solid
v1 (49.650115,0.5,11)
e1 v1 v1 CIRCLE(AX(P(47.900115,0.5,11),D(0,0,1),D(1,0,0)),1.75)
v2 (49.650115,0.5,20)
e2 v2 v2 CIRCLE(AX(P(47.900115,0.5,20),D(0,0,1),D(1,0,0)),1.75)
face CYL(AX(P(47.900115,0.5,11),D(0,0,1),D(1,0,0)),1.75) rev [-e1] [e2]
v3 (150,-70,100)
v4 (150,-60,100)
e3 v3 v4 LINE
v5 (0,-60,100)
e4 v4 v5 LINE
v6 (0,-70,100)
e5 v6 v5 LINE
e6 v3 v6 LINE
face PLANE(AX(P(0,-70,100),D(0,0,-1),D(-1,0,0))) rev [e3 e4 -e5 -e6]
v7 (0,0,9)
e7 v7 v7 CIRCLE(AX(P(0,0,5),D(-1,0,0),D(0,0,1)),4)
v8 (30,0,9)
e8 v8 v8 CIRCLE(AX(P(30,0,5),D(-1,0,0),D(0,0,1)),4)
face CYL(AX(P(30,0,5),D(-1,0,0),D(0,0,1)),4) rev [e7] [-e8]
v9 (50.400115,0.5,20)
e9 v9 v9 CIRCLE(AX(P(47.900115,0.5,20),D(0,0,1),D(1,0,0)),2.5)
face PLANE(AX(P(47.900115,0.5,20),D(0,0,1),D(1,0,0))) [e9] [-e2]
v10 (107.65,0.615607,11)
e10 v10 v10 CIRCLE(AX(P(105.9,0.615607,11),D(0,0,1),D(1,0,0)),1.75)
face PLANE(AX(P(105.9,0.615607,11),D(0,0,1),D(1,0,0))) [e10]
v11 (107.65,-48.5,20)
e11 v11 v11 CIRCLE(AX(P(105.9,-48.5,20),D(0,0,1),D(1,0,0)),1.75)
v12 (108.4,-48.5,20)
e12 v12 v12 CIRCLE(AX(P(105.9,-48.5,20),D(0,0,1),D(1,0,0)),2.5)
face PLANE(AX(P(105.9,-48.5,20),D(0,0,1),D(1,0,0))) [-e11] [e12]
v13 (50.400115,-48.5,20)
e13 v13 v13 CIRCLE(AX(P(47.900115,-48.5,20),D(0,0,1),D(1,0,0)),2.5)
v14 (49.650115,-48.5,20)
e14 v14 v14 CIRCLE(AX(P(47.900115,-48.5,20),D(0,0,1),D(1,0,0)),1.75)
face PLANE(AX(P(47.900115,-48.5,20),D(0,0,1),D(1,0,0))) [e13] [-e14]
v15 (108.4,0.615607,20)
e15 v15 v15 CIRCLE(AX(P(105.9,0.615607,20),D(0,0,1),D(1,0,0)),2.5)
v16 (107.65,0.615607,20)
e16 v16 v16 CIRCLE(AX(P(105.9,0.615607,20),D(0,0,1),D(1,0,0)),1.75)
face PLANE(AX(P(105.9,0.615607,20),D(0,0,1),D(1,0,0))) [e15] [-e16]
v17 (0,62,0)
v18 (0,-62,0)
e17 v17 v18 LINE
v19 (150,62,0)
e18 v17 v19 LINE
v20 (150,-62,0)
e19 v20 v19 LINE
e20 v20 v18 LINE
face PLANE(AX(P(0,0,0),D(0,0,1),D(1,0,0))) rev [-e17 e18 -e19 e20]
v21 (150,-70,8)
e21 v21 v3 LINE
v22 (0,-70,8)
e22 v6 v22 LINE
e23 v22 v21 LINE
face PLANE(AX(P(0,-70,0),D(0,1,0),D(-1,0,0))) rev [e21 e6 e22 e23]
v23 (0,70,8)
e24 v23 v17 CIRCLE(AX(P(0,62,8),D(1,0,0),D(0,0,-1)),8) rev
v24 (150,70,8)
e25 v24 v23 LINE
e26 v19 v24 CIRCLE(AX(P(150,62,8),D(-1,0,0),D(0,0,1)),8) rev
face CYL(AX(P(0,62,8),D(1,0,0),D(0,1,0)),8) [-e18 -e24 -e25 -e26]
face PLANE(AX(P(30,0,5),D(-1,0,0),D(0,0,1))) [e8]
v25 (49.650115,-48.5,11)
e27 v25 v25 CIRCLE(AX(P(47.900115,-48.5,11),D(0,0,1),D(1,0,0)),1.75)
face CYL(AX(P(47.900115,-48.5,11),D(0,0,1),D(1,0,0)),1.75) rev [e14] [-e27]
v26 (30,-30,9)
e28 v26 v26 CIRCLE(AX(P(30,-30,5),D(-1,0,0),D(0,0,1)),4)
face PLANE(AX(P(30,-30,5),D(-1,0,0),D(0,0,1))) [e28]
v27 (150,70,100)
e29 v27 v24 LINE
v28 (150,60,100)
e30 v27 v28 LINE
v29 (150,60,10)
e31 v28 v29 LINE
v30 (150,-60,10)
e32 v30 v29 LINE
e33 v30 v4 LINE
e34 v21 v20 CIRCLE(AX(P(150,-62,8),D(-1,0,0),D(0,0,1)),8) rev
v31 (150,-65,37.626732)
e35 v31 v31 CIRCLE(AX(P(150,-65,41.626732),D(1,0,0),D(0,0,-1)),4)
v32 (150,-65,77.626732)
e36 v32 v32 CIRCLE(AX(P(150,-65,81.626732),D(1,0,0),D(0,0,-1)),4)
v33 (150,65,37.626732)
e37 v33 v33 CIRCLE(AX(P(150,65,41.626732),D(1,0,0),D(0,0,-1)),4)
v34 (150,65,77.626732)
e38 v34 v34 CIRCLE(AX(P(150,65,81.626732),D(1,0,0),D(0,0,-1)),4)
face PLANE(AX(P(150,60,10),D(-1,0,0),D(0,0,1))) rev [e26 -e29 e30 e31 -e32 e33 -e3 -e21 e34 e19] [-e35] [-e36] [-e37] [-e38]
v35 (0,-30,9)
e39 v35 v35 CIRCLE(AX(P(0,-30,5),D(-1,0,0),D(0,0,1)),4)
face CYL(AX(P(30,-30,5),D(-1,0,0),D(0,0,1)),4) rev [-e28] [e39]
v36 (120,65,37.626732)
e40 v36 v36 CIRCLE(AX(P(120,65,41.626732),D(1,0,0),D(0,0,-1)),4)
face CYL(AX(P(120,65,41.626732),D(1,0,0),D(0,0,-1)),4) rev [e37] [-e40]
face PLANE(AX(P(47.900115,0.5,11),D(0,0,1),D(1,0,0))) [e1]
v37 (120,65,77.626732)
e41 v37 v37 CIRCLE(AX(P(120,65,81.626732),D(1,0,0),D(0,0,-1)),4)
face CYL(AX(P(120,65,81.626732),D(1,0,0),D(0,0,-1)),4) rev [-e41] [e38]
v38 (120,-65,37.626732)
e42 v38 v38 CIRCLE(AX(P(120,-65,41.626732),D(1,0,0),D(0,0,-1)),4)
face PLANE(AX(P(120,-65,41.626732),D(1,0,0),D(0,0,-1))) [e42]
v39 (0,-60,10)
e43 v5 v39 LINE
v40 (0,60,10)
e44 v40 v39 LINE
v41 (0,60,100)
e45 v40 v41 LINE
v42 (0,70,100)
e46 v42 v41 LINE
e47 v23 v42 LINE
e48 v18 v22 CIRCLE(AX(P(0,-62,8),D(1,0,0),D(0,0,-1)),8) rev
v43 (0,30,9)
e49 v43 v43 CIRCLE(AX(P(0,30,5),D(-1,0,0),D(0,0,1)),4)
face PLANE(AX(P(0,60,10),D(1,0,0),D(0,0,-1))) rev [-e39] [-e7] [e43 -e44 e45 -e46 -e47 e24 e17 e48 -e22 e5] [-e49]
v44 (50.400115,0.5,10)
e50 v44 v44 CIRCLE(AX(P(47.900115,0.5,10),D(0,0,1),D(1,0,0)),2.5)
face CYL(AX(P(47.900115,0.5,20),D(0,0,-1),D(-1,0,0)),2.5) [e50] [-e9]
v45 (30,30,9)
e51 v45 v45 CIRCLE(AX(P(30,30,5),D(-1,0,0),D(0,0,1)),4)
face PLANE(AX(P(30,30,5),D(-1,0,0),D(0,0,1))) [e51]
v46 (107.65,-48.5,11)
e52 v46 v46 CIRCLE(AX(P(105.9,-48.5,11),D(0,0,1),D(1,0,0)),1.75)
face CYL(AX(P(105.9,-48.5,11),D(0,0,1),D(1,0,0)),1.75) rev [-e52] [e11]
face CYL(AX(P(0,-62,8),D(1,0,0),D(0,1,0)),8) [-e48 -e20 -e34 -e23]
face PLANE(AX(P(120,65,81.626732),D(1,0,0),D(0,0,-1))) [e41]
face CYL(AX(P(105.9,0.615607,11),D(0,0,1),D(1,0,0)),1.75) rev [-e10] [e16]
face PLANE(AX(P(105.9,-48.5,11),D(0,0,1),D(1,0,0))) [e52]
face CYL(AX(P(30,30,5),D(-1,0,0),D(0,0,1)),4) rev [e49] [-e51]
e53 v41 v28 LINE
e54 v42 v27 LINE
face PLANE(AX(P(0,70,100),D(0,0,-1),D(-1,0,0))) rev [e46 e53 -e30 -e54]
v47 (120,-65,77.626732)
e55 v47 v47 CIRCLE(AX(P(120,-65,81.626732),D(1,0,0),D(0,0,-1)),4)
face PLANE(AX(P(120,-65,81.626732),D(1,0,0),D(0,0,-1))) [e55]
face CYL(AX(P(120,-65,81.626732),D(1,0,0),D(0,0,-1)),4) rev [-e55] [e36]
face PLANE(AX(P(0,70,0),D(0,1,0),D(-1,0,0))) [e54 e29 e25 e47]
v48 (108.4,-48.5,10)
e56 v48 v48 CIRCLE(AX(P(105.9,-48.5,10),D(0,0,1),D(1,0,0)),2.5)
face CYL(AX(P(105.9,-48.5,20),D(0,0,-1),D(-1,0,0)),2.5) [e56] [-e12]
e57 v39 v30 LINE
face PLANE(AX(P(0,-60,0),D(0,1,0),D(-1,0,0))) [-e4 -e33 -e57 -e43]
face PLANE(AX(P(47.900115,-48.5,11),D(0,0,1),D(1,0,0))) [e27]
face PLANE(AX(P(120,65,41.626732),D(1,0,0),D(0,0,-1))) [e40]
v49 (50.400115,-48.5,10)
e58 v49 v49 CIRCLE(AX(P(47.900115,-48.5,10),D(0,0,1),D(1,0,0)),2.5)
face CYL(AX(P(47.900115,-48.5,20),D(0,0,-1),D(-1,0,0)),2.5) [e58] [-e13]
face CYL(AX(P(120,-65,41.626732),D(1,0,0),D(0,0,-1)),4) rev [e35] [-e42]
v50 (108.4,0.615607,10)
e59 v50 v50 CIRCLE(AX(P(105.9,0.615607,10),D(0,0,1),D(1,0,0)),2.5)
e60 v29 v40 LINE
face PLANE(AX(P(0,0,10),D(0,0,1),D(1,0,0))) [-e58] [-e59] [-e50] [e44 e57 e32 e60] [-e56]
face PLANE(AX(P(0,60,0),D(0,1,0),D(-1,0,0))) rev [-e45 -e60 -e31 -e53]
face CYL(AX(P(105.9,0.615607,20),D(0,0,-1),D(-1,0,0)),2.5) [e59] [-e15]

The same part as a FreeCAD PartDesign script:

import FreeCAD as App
import Part
import Sketcher
from FreeCAD import Vector
Q = App.Units.Quantity


def edges_at(feature, points):
    """Names of the edges that pass closest to the given points."""
    edges = feature.Shape.Edges
    near = lambda p: min(range(len(edges)), key=lambda i: edges[i].distToShape(Part.Vertex(*p))[0])
    return sorted({f"Edge{near(p) + 1}" for p in points})

doc = App.newDocument("Part")
params = doc.addObject("Spreadsheet::Sheet", "Params")
for row, (alias, value) in enumerate([
    ("sketch1_width", "150 mm"),
    ("sketch1_height", "120 mm"),
    ("pad1_length", "10 mm"),
    ("sketch2_diameter", "8 mm"),
    ("pocket1_length", "30 mm"),
    ("sketch3_diameter", "5 mm"),
    ("pad2_length", "10 mm"),
    ("sketch4_diameter", "3.5 mm"),
    ("pocket2_length", "9 mm"),
    ("sketch5_width", "150 mm"),
    ("sketch5_height", "100 mm"),
    ("pad3_length", "10 mm"),
    ("sketch6_width", "150 mm"),
    ("sketch6_height", "100 mm"),
    ("pad4_length", "10 mm"),
    ("sketch7_diameter", "8 mm"),
    ("pocket3_length", "30 mm"),
    ("fillet_radius", "8 mm"),
], start=1):
    params.set(f"A{row}", alias)
    params.set(f"B{row}", "=" + value)
    params.setAlias(f"B{row}", alias)

body = doc.addObject("PartDesign::Body", "Body")

# Sketch on XY plane
sketch1 = body.newObject("Sketcher::SketchObject", "Sketch")
sketch1.AttachmentSupport = (doc.getObject("XY_Plane"), [""])
sketch1.MapMode = "FlatFace"
sketch1.addGeometry([
    Part.LineSegment(Vector(0, 60, 0), Vector(0, -60, 0)),
    Part.LineSegment(Vector(0, -60, 0), Vector(150, -60, 0)),
    Part.LineSegment(Vector(150, -60, 0), Vector(150, 60, 0)),
    Part.LineSegment(Vector(150, 60, 0), Vector(0, 60, 0)),
], False)
sketch1.addConstraint([
    Sketcher.Constraint("Coincident", 0, 2, 1, 1),
    Sketcher.Constraint("Coincident", 1, 2, 2, 1),
    Sketcher.Constraint("Coincident", 2, 2, 3, 1),
    Sketcher.Constraint("Coincident", 3, 2, 0, 1),
    Sketcher.Constraint("Vertical", 0),
    Sketcher.Constraint("Horizontal", 1),
    Sketcher.Constraint("Vertical", 2),
    Sketcher.Constraint("Horizontal", 3),
    Sketcher.Constraint("Symmetric", 0, 2, 3, 2, -1, 1),
    Sketcher.Constraint("DistanceX", 1, 1, 1, 2, Q("150 mm")),
    Sketcher.Constraint("DistanceY", 0, 2, 0, 1, Q("120 mm")),
])
sketch1.setExpression("Constraints[9]", "Params.sketch1_width")
sketch1.setExpression("Constraints[10]", "Params.sketch1_height")
pad1 = body.newObject("PartDesign::Pad", "Pad")
pad1.Profile = sketch1
pad1.setExpression("Length", "Params.pad1_length")

# Sketch on YZ plane
sketch2 = body.newObject("Sketcher::SketchObject", "Sketch001")
sketch2.AttachmentSupport = (doc.getObject("YZ_Plane"), [""])
sketch2.MapMode = "FlatFace"
sketch2.addGeometry([
    Part.Circle(Vector(0, 5, 0), Vector(0, 0, 1), 4),
    Part.Circle(Vector(30, 5, 0), Vector(0, 0, 1), 4),
    Part.Circle(Vector(-30, 5, 0), Vector(0, 0, 1), 4),
], False)
sketch2.addConstraint([
    Sketcher.Constraint("Equal", 0, 1),
    Sketcher.Constraint("Equal", 1, 2),
    Sketcher.Constraint("Symmetric", 1, 3, 2, 3, -2),
    Sketcher.Constraint("PointOnObject", 0, 3, -2),
    Sketcher.Constraint("Horizontal", 0, 3, 1, 3),
    Sketcher.Constraint("Diameter", 0, Q("8 mm")),
    Sketcher.Constraint("DistanceY", -1, 1, 0, 3, Q("5 mm")),
    Sketcher.Constraint("DistanceX", -1, 1, 1, 3, Q("30 mm")),
])
sketch2.setExpression("Constraints[5]", "Params.sketch2_diameter")
pocket1 = body.newObject("PartDesign::Pocket", "Pocket")
pocket1.Profile = sketch2
pocket1.setExpression("Length", "Params.pocket1_length")
pocket1.Reversed = True

# Sketch on XY plane
sketch3 = body.newObject("Sketcher::SketchObject", "Sketch002")
sketch3.AttachmentSupport = (doc.getObject("XY_Plane"), [""])
sketch3.MapMode = "FlatFace"
sketch3.AttachmentOffset = App.Placement(Vector(0, 0, 10), App.Rotation())
sketch3.addGeometry([
    Part.Circle(Vector(47.9, 0.5, 0), Vector(0, 0, 1), 2.5),
    Part.Circle(Vector(105.9, 0.6, 0), Vector(0, 0, 1), 2.5),
    Part.Circle(Vector(105.9, -48.5, 0), Vector(0, 0, 1), 2.5),
    Part.Circle(Vector(47.9, -48.5, 0), Vector(0, 0, 1), 2.5),
], False)
sketch3.addConstraint([
    Sketcher.Constraint("Equal", 0, 1),
    Sketcher.Constraint("Equal", 1, 2),
    Sketcher.Constraint("Equal", 2, 3),
    Sketcher.Constraint("Horizontal", 2, 3, 3, 3),
    Sketcher.Constraint("Vertical", 1, 3, 2, 3),
    Sketcher.Constraint("Vertical", 0, 3, 3, 3),
    Sketcher.Constraint("Diameter", 0, Q("5 mm")),
    Sketcher.Constraint("DistanceY", 2, 3, 0, 3, Q("49 mm")),
    Sketcher.Constraint("DistanceY", -1, 1, 0, 3, Q("0.5 mm")),
    Sketcher.Constraint("DistanceX", -1, 1, 1, 3, Q("105.9 mm")),
    Sketcher.Constraint("DistanceX", -1, 1, 0, 3, Q("47.900115 mm")),
    Sketcher.Constraint("DistanceY", -1, 1, 1, 3, Q("0.615607 mm")),
])
sketch3.setExpression("Constraints[6]", "Params.sketch3_diameter")
pad2 = body.newObject("PartDesign::Pad", "Pad001")
pad2.Profile = sketch3
pad2.setExpression("Length", "Params.pad2_length")

# Sketch on XY plane
sketch4 = body.newObject("Sketcher::SketchObject", "Sketch003")
sketch4.AttachmentSupport = (doc.getObject("XY_Plane"), [""])
sketch4.MapMode = "FlatFace"
sketch4.AttachmentOffset = App.Placement(Vector(0, 0, 20), App.Rotation())
sketch4.addGeometry([
    Part.Circle(Vector(47.9, 0.5, 0), Vector(0, 0, 1), 1.8),
    Part.Circle(Vector(47.9, -48.5, 0), Vector(0, 0, 1), 1.8),
    Part.Circle(Vector(105.9, -48.5, 0), Vector(0, 0, 1), 1.8),
    Part.Circle(Vector(105.9, 0.6, 0), Vector(0, 0, 1), 1.8),
], False)
sketch4.addConstraint([
    Sketcher.Constraint("Equal", 0, 1),
    Sketcher.Constraint("Equal", 1, 2),
    Sketcher.Constraint("Equal", 2, 3),
    Sketcher.Constraint("Horizontal", 1, 3, 2, 3),
    Sketcher.Constraint("Vertical", 0, 3, 1, 3),
    Sketcher.Constraint("Vertical", 2, 3, 3, 3),
    Sketcher.Constraint("Diameter", 0, Q("3.5 mm")),
    Sketcher.Constraint("DistanceY", 1, 3, 0, 3, Q("49 mm")),
    Sketcher.Constraint("DistanceY", -1, 1, 0, 3, Q("0.5 mm")),
    Sketcher.Constraint("DistanceX", -1, 1, 2, 3, Q("105.9 mm")),
    Sketcher.Constraint("DistanceX", -1, 1, 0, 3, Q("47.900115 mm")),
    Sketcher.Constraint("DistanceY", -1, 1, 3, 3, Q("0.615607 mm")),
])
sketch4.setExpression("Constraints[6]", "Params.sketch4_diameter")
pocket2 = body.newObject("PartDesign::Pocket", "Pocket001")
pocket2.Profile = sketch4
pocket2.setExpression("Length", "Params.pocket2_length")

# Sketch on XZ plane
sketch5 = body.newObject("Sketcher::SketchObject", "Sketch004")
sketch5.AttachmentSupport = (doc.getObject("XZ_Plane"), [""])
sketch5.MapMode = "FlatFace"
sketch5.AttachmentOffset = App.Placement(Vector(0, 0, 60), App.Rotation())
sketch5.addGeometry([
    Part.LineSegment(Vector(0, 100, 0), Vector(0, 0, 0)),
    Part.LineSegment(Vector(0, 0, 0), Vector(150, 0, 0)),
    Part.LineSegment(Vector(150, 0, 0), Vector(150, 100, 0)),
    Part.LineSegment(Vector(150, 100, 0), Vector(0, 100, 0)),
], False)
sketch5.addConstraint([
    Sketcher.Constraint("Coincident", 0, 2, 1, 1),
    Sketcher.Constraint("Coincident", 1, 2, 2, 1),
    Sketcher.Constraint("Coincident", 2, 2, 3, 1),
    Sketcher.Constraint("Coincident", 3, 2, 0, 1),
    Sketcher.Constraint("Vertical", 0),
    Sketcher.Constraint("Horizontal", 1),
    Sketcher.Constraint("Vertical", 2),
    Sketcher.Constraint("Horizontal", 3),
    Sketcher.Constraint("Coincident", 0, 2, -1, 1),
    Sketcher.Constraint("DistanceX", 1, 1, 1, 2, Q("150 mm")),
    Sketcher.Constraint("DistanceY", 0, 2, 0, 1, Q("100 mm")),
])
sketch5.setExpression("Constraints[9]", "Params.sketch5_width")
sketch5.setExpression("Constraints[10]", "Params.sketch5_height")
pad3 = body.newObject("PartDesign::Pad", "Pad002")
pad3.Profile = sketch5
pad3.setExpression("Length", "Params.pad3_length")

# Sketch on XZ plane
sketch6 = body.newObject("Sketcher::SketchObject", "Sketch005")
sketch6.AttachmentSupport = (doc.getObject("XZ_Plane"), [""])
sketch6.MapMode = "FlatFace"
sketch6.AttachmentOffset = App.Placement(Vector(0, 0, -60), App.Rotation())
sketch6.addGeometry([
    Part.LineSegment(Vector(0, 0, 0), Vector(0, 100, 0)),
    Part.LineSegment(Vector(0, 100, 0), Vector(150, 100, 0)),
    Part.LineSegment(Vector(150, 100, 0), Vector(150, 0, 0)),
    Part.LineSegment(Vector(150, 0, 0), Vector(0, 0, 0)),
], False)
sketch6.addConstraint([
    Sketcher.Constraint("Coincident", 0, 2, 1, 1),
    Sketcher.Constraint("Coincident", 1, 2, 2, 1),
    Sketcher.Constraint("Coincident", 2, 2, 3, 1),
    Sketcher.Constraint("Coincident", 3, 2, 0, 1),
    Sketcher.Constraint("Vertical", 0),
    Sketcher.Constraint("Horizontal", 1),
    Sketcher.Constraint("Vertical", 2),
    Sketcher.Constraint("Horizontal", 3),
    Sketcher.Constraint("Coincident", 3, 2, -1, 1),
    Sketcher.Constraint("DistanceX", 1, 1, 1, 2, Q("150 mm")),
    Sketcher.Constraint("DistanceY", 0, 1, 0, 2, Q("100 mm")),
])
sketch6.setExpression("Constraints[9]", "Params.sketch6_width")
sketch6.setExpression("Constraints[10]", "Params.sketch6_height")
pad4 = body.newObject("PartDesign::Pad", "Pad003")
pad4.Profile = sketch6
pad4.setExpression("Length", "Params.pad4_length")
pad4.Reversed = True

# Sketch on YZ plane
sketch7 = body.newObject("Sketcher::SketchObject", "Sketch006")
sketch7.AttachmentSupport = (doc.getObject("YZ_Plane"), [""])
sketch7.MapMode = "FlatFace"
sketch7.AttachmentOffset = App.Placement(Vector(0, 0, 150), App.Rotation())
sketch7.addGeometry([
    Part.Circle(Vector(65, 81.6, 0), Vector(0, 0, 1), 4),
    Part.Circle(Vector(65, 41.6, 0), Vector(0, 0, 1), 4),
    Part.Circle(Vector(-65, 81.6, 0), Vector(0, 0, 1), 4),
    Part.Circle(Vector(-65, 41.6, 0), Vector(0, 0, 1), 4),
], False)
sketch7.addConstraint([
    Sketcher.Constraint("Equal", 0, 1),
    Sketcher.Constraint("Equal", 1, 2),
    Sketcher.Constraint("Equal", 2, 3),
    Sketcher.Constraint("Symmetric", 0, 3, 2, 3, -2),
    Sketcher.Constraint("Symmetric", 1, 3, 3, 3, -2),
    Sketcher.Constraint("Vertical", 0, 3, 1, 3),
    Sketcher.Constraint("Diameter", 0, Q("8 mm")),
    Sketcher.Constraint("DistanceX", -1, 1, 0, 3, Q("65 mm")),
    Sketcher.Constraint("DistanceY", 1, 3, 0, 3, Q("40 mm")),
    Sketcher.Constraint("DistanceY", -1, 1, 0, 3, Q("81.626732 mm")),
])
sketch7.setExpression("Constraints[6]", "Params.sketch7_diameter")
pocket3 = body.newObject("PartDesign::Pocket", "Pocket002")
pocket3.Profile = sketch7
pocket3.setExpression("Length", "Params.pocket3_length")
doc.recompute()

fillet = body.newObject("PartDesign::Fillet", "Fillet")
fillet.Base = (pocket3, edges_at(pocket3, [(75, -70, 0), (75, 70, 0)]))
fillet.setExpression("Radius", "Params.fillet_radius")

doc.recompute()
